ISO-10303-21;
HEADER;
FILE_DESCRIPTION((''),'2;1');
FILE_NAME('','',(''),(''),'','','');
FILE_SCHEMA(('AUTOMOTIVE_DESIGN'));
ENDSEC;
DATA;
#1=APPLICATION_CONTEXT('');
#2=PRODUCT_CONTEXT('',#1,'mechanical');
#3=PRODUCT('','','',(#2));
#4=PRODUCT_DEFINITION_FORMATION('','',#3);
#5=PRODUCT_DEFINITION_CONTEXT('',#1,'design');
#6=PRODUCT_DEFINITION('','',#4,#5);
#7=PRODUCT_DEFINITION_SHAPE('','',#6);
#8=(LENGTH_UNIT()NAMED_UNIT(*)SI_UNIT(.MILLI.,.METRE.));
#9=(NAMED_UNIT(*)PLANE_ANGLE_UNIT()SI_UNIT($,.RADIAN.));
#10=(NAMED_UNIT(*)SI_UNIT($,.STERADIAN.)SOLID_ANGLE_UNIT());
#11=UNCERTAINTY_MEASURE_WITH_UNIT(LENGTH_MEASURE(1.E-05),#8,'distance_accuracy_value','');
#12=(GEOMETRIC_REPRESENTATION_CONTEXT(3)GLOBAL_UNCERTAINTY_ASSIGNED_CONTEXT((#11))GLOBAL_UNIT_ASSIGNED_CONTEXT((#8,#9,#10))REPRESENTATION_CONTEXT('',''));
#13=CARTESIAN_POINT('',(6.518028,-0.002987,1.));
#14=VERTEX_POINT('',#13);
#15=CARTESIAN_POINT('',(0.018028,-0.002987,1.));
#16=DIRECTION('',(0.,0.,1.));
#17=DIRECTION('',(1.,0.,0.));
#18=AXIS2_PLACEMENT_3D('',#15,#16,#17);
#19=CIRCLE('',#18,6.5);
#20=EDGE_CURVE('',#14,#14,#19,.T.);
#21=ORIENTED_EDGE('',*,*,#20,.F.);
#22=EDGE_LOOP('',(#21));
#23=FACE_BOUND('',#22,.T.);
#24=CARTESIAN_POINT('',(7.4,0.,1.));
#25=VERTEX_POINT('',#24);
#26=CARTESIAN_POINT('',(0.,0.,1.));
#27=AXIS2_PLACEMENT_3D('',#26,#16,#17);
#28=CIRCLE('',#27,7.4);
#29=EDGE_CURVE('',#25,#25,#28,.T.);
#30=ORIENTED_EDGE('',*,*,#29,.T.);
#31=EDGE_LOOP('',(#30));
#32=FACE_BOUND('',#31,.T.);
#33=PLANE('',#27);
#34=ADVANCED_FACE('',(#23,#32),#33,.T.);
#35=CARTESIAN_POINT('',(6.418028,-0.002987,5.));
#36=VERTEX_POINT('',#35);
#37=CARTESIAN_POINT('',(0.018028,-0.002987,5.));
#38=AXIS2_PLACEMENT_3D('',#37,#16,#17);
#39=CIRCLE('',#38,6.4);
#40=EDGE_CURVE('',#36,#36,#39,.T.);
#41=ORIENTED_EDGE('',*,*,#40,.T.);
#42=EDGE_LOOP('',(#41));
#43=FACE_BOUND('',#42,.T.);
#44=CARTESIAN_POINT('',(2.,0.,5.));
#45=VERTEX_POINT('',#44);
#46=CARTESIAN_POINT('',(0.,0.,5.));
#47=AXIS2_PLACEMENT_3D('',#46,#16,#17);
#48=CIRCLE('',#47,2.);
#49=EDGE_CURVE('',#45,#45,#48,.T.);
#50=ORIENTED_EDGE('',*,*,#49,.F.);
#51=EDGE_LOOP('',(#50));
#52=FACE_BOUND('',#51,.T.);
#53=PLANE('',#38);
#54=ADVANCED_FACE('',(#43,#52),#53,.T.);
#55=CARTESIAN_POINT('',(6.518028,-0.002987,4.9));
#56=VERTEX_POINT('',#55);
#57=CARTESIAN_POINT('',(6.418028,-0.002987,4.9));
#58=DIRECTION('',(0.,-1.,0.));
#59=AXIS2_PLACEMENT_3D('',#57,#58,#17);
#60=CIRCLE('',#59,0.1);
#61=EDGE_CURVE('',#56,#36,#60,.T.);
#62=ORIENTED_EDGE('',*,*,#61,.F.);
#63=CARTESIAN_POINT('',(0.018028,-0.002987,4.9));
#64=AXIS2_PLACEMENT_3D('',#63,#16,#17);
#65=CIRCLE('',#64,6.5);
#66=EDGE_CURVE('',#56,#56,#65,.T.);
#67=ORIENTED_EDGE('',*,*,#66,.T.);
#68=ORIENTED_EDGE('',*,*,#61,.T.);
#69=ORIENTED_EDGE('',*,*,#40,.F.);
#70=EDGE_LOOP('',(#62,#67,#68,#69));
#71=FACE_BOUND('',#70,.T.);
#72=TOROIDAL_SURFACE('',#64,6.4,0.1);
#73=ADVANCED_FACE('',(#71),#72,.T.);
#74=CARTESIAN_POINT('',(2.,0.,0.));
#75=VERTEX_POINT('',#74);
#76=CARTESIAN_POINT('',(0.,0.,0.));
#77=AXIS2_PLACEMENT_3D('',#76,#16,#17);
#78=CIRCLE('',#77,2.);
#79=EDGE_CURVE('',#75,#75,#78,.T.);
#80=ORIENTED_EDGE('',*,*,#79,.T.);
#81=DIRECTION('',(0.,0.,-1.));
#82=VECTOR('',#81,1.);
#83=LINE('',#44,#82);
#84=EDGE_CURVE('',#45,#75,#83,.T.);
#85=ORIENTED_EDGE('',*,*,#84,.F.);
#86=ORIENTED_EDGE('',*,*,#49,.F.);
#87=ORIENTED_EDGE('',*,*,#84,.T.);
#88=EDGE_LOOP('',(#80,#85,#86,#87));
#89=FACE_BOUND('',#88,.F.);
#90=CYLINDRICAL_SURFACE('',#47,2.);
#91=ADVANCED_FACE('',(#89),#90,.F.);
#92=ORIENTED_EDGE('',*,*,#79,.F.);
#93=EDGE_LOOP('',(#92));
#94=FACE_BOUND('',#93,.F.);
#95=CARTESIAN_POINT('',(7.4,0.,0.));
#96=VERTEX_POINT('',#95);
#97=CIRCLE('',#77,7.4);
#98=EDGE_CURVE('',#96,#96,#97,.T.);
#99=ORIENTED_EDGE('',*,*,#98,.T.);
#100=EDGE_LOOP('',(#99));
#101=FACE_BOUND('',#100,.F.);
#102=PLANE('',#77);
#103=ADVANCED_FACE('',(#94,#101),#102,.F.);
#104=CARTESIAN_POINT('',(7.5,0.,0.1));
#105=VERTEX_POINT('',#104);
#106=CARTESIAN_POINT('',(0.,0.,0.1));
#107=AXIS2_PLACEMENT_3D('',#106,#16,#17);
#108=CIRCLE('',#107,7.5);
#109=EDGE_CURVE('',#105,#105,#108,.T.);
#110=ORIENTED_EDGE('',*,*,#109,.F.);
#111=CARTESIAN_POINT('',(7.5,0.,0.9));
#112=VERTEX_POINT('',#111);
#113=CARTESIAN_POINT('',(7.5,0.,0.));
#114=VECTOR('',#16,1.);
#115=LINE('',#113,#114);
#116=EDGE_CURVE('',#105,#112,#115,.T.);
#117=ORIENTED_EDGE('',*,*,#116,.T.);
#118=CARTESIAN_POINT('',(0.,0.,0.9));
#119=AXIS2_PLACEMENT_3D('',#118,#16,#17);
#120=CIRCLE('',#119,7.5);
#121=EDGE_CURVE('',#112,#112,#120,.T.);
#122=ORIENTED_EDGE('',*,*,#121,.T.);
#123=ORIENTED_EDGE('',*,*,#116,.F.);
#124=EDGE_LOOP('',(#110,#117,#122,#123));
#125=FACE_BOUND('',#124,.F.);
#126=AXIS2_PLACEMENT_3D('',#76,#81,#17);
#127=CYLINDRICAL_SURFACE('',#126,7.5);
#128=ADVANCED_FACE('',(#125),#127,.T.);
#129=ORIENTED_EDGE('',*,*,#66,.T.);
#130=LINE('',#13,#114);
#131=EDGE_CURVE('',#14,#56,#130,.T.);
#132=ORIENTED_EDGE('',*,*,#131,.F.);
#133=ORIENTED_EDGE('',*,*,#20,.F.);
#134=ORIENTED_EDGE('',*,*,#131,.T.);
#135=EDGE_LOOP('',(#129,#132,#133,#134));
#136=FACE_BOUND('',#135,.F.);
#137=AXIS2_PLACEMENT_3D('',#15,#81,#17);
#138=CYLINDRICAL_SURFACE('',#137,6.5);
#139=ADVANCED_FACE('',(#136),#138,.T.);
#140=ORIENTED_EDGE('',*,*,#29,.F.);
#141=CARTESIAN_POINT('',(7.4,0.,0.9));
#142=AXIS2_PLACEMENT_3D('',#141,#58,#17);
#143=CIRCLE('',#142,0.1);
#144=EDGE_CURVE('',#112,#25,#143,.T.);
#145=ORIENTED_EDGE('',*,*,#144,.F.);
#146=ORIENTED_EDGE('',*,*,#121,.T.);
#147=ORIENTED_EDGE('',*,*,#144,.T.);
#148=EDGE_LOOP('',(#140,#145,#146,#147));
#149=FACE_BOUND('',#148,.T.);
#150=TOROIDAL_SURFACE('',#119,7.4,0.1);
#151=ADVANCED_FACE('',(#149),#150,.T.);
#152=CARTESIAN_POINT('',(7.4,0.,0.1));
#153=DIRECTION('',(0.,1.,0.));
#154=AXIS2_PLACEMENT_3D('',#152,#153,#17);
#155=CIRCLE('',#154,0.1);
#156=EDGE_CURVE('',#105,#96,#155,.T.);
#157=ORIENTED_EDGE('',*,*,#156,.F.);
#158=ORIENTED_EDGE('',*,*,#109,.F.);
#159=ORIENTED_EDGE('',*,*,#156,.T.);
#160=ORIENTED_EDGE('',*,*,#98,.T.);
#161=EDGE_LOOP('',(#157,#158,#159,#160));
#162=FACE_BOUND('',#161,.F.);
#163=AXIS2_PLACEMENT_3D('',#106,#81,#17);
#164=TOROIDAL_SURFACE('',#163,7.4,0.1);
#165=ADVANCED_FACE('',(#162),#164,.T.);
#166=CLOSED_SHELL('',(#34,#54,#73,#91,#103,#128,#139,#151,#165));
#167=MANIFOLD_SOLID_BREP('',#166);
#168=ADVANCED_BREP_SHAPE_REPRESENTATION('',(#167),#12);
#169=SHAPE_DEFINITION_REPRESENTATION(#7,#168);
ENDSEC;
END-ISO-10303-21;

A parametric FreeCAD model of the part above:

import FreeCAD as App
import Part
import Sketcher

V = App.Vector
Q = App.Units.Quantity


def edges_at(feature, points):
    """Names of the edges that pass closest to the given points."""
    edges = feature.Shape.Edges
    near = lambda p: min(range(len(edges)), key=lambda i: edges[i].distToShape(Part.Vertex(*p))[0])
    return sorted({f"Edge{near(p) + 1}" for p in points})

doc = App.newDocument("Part")
params = doc.addObject("Spreadsheet::Sheet", "Params")
for row, (alias, value) in enumerate([
    ("sketch1_diameter", "15 mm"),
    ("pad1_length", "1 mm"),
    ("sketch2_diameter", "13 mm"),
    ("pad2_length", "4 mm"),
    ("sketch3_diameter", "4 mm"),
    ("fillet_radius", "0.1 mm"),
], start=1):
    params.set(f"A{row}", alias)
    params.set(f"B{row}", "=" + value)
    params.setAlias(f"B{row}", alias)

body = doc.addObject("PartDesign::Body", "Body")

sketch1 = doc.addObject("Sketcher::SketchObject", "Sketch")
body.addObject(sketch1)
sketch1.AttachmentSupport = (doc.XY_Plane, [""])
sketch1.MapMode = "FlatFace"
sketch1.addGeometry(Part.Circle(V(0, 0, 0), V(0, 0, 1), 8), False)
sketch1.addConstraint([
    Sketcher.Constraint("Coincident", 0, 3, -1, 1),
    Sketcher.Constraint("Diameter", 0, Q("15 mm")),
])
sketch1.setExpression("Constraints[1]", "Params.sketch1_diameter")
pad1 = doc.addObject("PartDesign::Pad", "Pad")
body.addObject(pad1)
pad1.Profile = sketch1
pad1.setExpression("Length", "Params.pad1_length")

sketch2 = doc.addObject("Sketcher::SketchObject", "Sketch001")
body.addObject(sketch2)
sketch2.AttachmentSupport = (doc.XY_Plane, [""])
sketch2.MapMode = "FlatFace"
sketch2.AttachmentOffset = App.Placement(V(0, 0, 1), App.Rotation())
sketch2.addGeometry(Part.Circle(V(0, 0, 0), V(0, 0, 1), 6), False)
sketch2.addConstraint([
    Sketcher.Constraint("Diameter", 0, Q("13 mm")),
    Sketcher.Constraint("DistanceX", -1, 1, 0, 3, Q("0.018028 mm")),
    Sketcher.Constraint("DistanceY", 0, 3, -1, 1, Q("0.002987 mm")),
])
sketch2.setExpression("Constraints[0]", "Params.sketch2_diameter")
pad2 = doc.addObject("PartDesign::Pad", "Pad001")
body.addObject(pad2)
pad2.Profile = sketch2
pad2.setExpression("Length", "Params.pad2_length")

sketch3 = doc.addObject("Sketcher::SketchObject", "Sketch002")
body.addObject(sketch3)
sketch3.AttachmentSupport = (doc.XY_Plane, [""])
sketch3.MapMode = "FlatFace"
sketch3.AttachmentOffset = App.Placement(V(0, 0, 5), App.Rotation())
sketch3.addGeometry(Part.Circle(V(0, 0, 0), V(0, 0, 1), 2), False)
sketch3.addConstraint([
    Sketcher.Constraint("Coincident", 0, 3, -1, 1),
    Sketcher.Constraint("Diameter", 0, Q("4 mm")),
])
sketch3.setExpression("Constraints[1]", "Params.sketch3_diameter")
pocket1 = doc.addObject("PartDesign::Pocket", "Pocket")
body.addObject(pocket1)
pocket1.Profile = sketch3
pocket1.Type = "ThroughAll"
doc.recompute()

fillet = doc.addObject("PartDesign::Fillet", "Fillet")
body.addObject(fillet)
fillet.Base = (pocket1, edges_at(pocket1, [(-7.5, 0, 1), (-7.5, 0, 0), (-6.482, -0.003, 5)]))
fillet.setExpression("Radius", "Params.fillet_radius")

doc.recompute()
